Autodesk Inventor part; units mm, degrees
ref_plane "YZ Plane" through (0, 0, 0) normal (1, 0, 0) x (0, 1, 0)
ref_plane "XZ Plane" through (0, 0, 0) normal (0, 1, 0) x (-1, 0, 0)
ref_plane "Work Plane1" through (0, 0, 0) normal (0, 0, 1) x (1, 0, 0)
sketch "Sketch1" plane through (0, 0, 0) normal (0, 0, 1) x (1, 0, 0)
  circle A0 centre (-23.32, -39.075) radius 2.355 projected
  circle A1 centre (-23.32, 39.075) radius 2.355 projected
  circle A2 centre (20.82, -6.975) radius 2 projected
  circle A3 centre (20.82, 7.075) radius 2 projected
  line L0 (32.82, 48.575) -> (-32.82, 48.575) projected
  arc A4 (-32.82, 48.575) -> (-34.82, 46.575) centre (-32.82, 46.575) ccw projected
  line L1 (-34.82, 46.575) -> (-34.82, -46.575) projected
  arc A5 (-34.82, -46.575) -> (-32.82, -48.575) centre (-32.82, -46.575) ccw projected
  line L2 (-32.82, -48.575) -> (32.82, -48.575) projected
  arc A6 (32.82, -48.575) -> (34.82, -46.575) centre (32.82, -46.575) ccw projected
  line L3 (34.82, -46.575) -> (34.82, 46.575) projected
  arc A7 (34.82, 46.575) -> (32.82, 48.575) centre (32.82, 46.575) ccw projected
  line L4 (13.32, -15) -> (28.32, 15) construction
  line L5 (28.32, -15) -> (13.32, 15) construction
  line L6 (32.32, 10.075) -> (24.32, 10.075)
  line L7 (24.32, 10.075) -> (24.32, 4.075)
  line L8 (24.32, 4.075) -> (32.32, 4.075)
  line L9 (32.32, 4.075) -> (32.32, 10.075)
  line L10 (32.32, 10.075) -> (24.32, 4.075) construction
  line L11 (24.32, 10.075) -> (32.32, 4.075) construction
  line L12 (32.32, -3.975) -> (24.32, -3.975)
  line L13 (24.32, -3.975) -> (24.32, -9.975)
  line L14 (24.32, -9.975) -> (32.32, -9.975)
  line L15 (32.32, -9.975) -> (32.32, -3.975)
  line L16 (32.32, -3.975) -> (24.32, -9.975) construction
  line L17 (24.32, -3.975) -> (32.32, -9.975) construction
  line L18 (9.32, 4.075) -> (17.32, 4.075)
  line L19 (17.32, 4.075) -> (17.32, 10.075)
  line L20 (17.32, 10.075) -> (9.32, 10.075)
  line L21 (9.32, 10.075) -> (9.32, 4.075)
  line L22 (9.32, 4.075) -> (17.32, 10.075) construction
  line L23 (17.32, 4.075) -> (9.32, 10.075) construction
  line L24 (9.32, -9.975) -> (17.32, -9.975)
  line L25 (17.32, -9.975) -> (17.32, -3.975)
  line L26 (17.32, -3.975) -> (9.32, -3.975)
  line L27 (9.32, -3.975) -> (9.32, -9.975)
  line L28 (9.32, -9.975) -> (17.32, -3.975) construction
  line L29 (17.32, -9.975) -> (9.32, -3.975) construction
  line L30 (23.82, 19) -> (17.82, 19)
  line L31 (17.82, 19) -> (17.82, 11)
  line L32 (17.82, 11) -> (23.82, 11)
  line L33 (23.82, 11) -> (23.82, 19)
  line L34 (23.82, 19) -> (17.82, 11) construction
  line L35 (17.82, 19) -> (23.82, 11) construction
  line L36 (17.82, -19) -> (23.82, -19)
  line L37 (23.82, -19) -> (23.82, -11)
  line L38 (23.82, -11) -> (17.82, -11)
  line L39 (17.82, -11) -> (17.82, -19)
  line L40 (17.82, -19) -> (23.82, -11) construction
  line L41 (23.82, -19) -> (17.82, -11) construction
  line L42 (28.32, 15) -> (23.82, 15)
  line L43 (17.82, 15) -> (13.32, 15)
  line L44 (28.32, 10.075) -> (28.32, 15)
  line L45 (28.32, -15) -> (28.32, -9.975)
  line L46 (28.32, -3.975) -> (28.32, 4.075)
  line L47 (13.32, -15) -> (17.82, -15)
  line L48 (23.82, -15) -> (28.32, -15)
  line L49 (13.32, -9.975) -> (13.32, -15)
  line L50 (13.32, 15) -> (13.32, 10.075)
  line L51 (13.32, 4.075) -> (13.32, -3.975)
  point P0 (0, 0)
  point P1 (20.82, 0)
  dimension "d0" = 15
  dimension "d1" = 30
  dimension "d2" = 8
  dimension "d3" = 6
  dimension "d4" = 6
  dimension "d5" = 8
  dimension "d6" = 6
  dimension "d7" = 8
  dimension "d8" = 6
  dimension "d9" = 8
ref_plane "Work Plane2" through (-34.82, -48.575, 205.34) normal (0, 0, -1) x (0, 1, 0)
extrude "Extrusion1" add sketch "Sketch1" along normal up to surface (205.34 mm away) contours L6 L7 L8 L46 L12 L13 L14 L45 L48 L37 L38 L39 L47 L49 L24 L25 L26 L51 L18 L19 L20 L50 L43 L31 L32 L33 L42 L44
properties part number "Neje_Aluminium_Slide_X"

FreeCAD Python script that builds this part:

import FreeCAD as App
import Part
import Sketcher
Q = App.Units.Quantity


def add_polygon(sketch, points):
    """Adds a closed chain of lines whose ends are joined by coincident constraints."""
    first, n = sketch.GeometryCount, len(points)
    for a, b in zip(points, points[1:] + points[:1]):
        sketch.addGeometry(Part.LineSegment(App.Vector(*a, 0), App.Vector(*b, 0)), False)
    for i in range(n):
        sketch.addConstraint(Sketcher.Constraint("Coincident", first + i, 2, first + (i + 1) % n, 1))

doc = App.newDocument("Part")
body = doc.addObject("PartDesign::Body", "Body")

# Sketch on XY plane
sketch1 = body.newObject("Sketcher::SketchObject", "Sketch")
sketch1.AttachmentSupport = (doc.getObject("XY_Plane"), [""])
sketch1.MapMode = "FlatFace"
add_polygon(sketch1, [(24.3, 10.1), (28.3, 10.1), (28.3, 15), (23.8, 15), (23.8, 11), (17.8, 11), (17.8, 15), (13.3, 15), (13.3, 10.1), (17.3, 10.1), (17.3, 4.1), (13.3, 4.1), (13.3, -4), (17.3, -4), (17.3, -10), (13.3, -10), (13.3, -15), (17.8, -15), (17.8, -11), (23.8, -11), (23.8, -15), (28.3, -15), (28.3, -10), (24.3, -10), (24.3, -4), (28.3, -4), (28.3, 4.1), (24.3, 4.1)])  # lines 0-27
sketch1.addGeometry(Part.Circle(App.Vector(20.8, -7, 0), App.Vector(0, 0, 1), 2), False)  # 28
sketch1.addGeometry(Part.Circle(App.Vector(20.8, 7.1, 0), App.Vector(0, 0, 1), 2), False)  # 29
sketch1.addConstraint(Sketcher.Constraint("Horizontal", 0))
sketch1.addConstraint(Sketcher.Constraint("Vertical", 1))
sketch1.addConstraint(Sketcher.Constraint("Horizontal", 2))
sketch1.addConstraint(Sketcher.Constraint("Vertical", 3))
sketch1.addConstraint(Sketcher.Constraint("Horizontal", 4))
sketch1.addConstraint(Sketcher.Constraint("Vertical", 5))
sketch1.addConstraint(Sketcher.Constraint("Horizontal", 6))
sketch1.addConstraint(Sketcher.Constraint("Vertical", 7))
sketch1.addConstraint(Sketcher.Constraint("Horizontal", 8))
sketch1.addConstraint(Sketcher.Constraint("Vertical", 9))
sketch1.addConstraint(Sketcher.Constraint("Horizontal", 10))
sketch1.addConstraint(Sketcher.Constraint("Vertical", 11))
sketch1.addConstraint(Sketcher.Constraint("Horizontal", 12))
sketch1.addConstraint(Sketcher.Constraint("Vertical", 13))
sketch1.addConstraint(Sketcher.Constraint("Horizontal", 14))
sketch1.addConstraint(Sketcher.Constraint("Vertical", 15))
sketch1.addConstraint(Sketcher.Constraint("Horizontal", 16))
sketch1.addConstraint(Sketcher.Constraint("Vertical", 17))
sketch1.addConstraint(Sketcher.Constraint("Horizontal", 18))
sketch1.addConstraint(Sketcher.Constraint("Vertical", 19))
sketch1.addConstraint(Sketcher.Constraint("Horizontal", 20))
sketch1.addConstraint(Sketcher.Constraint("Vertical", 21))
sketch1.addConstraint(Sketcher.Constraint("Horizontal", 22))
sketch1.addConstraint(Sketcher.Constraint("Vertical", 23))
sketch1.addConstraint(Sketcher.Constraint("Horizontal", 24))
sketch1.addConstraint(Sketcher.Constraint("Vertical", 25))
sketch1.addConstraint(Sketcher.Constraint("Horizontal", 26))
sketch1.addConstraint(Sketcher.Constraint("Vertical", 27))
sketch1.addConstraint(Sketcher.Constraint("Equal", 28, 29))
sketch1.addConstraint(Sketcher.Constraint("Symmetric", 6, 2, 15, 2, -1))
sketch1.addConstraint(Sketcher.Constraint("Symmetric", 4, 2, 17, 2, -1))
sketch1.addConstraint(Sketcher.Constraint("Symmetric", 2, 2, 19, 2, -1))
sketch1.addConstraint(Sketcher.Constraint("Horizontal", 2, 2, 5, 2))
sketch1.addConstraint(Sketcher.Constraint("Horizontal", 0, 2, 7, 2))
sketch1.addConstraint(Sketcher.Constraint("Horizontal", 14, 2, 21, 2))
sketch1.addConstraint(Sketcher.Constraint("Horizontal", 12, 2, 23, 2))
sketch1.addConstraint(Sketcher.Constraint("Horizontal", 10, 2, 25, 2))
sketch1.addConstraint(Sketcher.Constraint("Vertical", 28, 3, 29, 3))
sketch1.addConstraint(Sketcher.Constraint("Vertical", 7, 2, 10, 2))
sketch1.addConstraint(Sketcher.Constraint("Vertical", 9, 2, 12, 2))
sketch1.addConstraint(Sketcher.Constraint("Vertical", 1, 2, 20, 2))
sketch1.addConstraint(Sketcher.Constraint("Vertical", 21, 2, 24, 2))
sketch1.addConstraint(Sketcher.Constraint("Vertical", 23, 2, 26, 2))
sketch1.addConstraint(Sketcher.Constraint("Equal", 2, 6))
sketch1.addConstraint(Sketcher.Constraint("Equal", 0, 8))
sketch1.addConstraint(Sketcher.Constraint("Equal", 26, 3))
sketch1.addConstraint(Sketcher.Constraint("Equal", 18, 9))
sketch1.addConstraint(Sketcher.Constraint("Equal", 9, 13))
sketch1.addConstraint(Sketcher.Constraint("DistanceX", 4, 2, 4, 1, Q("6 mm")))
sketch1.addConstraint(Sketcher.Constraint("Diameter", 28, Q("4 mm")))
sketch1.addConstraint(Sketcher.Constraint("DistanceY", -1, 1, 1, 2, Q("15 mm")))
sketch1.addConstraint(Sketcher.Constraint("DistanceX", 0, 1, 0, 2, Q("4 mm")))
sketch1.addConstraint(Sketcher.Constraint("DistanceX", 2, 2, 2, 1, Q("4.5 mm")))
sketch1.addConstraint(Sketcher.Constraint("DistanceY", 29, 3, 0, 2, Q("3 mm")))
sketch1.addConstraint(Sketcher.Constraint("DistanceX", 29, 3, 2, 2, Q("3 mm")))
sketch1.addConstraint(Sketcher.Constraint("DistanceY", 28, 3, 11, 2, Q("3 mm")))
sketch1.addConstraint(Sketcher.Constraint("DistanceY", 11, 2, 11, 1, Q("8.05 mm")))
sketch1.addConstraint(Sketcher.Constraint("DistanceY", 1, 1, 1, 2, Q("4.925 mm")))
sketch1.addConstraint(Sketcher.Constraint("DistanceX", -1, 1, 28, 3, Q("20.82 mm")))
pad1 = body.newObject("PartDesign::Pad", "Pad")
pad1.Profile = sketch1
pad1.Length = 205.34

doc.recompute()
